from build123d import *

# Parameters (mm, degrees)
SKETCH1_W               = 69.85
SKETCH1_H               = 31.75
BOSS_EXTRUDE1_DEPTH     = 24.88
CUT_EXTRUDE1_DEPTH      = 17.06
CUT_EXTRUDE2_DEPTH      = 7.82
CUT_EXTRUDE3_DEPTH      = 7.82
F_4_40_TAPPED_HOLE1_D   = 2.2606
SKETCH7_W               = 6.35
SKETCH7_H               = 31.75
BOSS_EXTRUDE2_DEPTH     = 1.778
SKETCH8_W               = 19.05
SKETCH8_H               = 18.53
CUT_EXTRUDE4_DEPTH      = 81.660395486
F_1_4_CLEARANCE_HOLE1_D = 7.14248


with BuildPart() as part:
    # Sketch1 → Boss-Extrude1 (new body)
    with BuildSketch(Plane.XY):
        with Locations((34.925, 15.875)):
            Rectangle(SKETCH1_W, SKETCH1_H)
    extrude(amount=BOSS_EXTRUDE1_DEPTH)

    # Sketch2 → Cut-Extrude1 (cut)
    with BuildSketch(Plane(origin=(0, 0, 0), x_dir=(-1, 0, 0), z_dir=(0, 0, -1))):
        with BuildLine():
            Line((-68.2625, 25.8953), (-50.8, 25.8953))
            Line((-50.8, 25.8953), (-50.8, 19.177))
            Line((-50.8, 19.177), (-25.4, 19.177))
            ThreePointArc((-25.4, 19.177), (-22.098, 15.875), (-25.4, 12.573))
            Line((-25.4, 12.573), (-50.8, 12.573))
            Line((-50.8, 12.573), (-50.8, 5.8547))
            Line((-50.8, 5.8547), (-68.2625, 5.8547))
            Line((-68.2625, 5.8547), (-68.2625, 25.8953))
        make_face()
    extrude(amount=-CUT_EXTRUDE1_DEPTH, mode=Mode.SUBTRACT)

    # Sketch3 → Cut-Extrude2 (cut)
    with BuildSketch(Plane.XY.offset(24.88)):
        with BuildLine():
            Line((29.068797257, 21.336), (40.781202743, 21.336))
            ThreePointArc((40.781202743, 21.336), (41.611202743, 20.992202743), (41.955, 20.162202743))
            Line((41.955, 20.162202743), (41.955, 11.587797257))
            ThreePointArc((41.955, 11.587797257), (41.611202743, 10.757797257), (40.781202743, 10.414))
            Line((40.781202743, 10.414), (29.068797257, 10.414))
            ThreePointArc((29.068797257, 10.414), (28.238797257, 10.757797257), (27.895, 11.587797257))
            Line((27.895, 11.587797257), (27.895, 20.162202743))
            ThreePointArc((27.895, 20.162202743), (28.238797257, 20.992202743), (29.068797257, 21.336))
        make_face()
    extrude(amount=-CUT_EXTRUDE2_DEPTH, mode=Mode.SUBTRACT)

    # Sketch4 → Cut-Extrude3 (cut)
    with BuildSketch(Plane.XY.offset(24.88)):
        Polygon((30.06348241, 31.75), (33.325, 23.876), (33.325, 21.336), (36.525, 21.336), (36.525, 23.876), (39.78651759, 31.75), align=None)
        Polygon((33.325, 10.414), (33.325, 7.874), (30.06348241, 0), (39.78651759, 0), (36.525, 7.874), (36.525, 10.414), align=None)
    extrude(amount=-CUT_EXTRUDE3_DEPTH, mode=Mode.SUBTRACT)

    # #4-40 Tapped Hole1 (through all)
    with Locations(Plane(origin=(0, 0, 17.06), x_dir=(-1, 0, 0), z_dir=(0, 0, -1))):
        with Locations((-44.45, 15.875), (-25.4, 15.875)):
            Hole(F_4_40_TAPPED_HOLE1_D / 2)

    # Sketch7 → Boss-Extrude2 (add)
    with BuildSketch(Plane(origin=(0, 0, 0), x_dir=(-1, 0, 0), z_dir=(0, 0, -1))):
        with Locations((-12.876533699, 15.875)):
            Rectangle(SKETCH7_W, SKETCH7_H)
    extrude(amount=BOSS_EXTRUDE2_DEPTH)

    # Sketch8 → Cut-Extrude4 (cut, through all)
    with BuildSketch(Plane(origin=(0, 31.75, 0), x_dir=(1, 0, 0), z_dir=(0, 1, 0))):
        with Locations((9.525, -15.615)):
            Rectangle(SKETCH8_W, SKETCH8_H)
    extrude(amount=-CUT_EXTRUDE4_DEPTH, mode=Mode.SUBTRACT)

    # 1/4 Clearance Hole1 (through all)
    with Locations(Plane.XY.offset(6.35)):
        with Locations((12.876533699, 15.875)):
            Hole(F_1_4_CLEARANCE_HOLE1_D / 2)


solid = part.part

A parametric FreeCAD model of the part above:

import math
import FreeCAD as App
import Part
import Sketcher
Q = App.Units.Quantity

doc = App.newDocument("Part")
params = doc.addObject("Spreadsheet::Sheet", "Params")
for row, (alias, value) in enumerate([
    ("sketch1_width", "2.75 in"),
    ("sketch1_height", "1.25 in"),
    ("pad1_length", "24.88 mm"),
    ("sketch2_width", "1 in"),
    ("sketch2_radius", "0.13 in"),
    ("sketch2_width2", "0.6875 in"),
    ("sketch2_height", "0.789 in"),
    ("pocket1_length", "17.06 mm"),
    ("pocket2_length", "7.82 mm"),
    ("sketch4_height", "0.1 in"),
    ("pocket3_length", "7.82 mm"),
    ("sketch5_diameter", "0.089 in"),
    ("hole_diameter", "0.089 in"),
    ("sketch6_width", "0.25 in"),
    ("sketch6_height", "1.25 in"),
    ("pad2_length", "0.07 in"),
    ("sketch7_width", "0.75 in"),
    ("hole2_diameter", "0.2812 in"),
], start=1):
    params.set(f"A{row}", alias)
    params.set(f"B{row}", "=" + value)
    params.setAlias(f"B{row}", alias)

body = doc.addObject("PartDesign::Body", "Body")

# Sketch on XY plane
sketch1 = body.newObject("Sketcher::SketchObject", "Sketch")
sketch1.AttachmentSupport = (doc.getObject("XY_Plane"), [""])
sketch1.MapMode = "FlatFace"
sketch1.addGeometry(Part.LineSegment(App.Vector(0, 31.75, 0), App.Vector(0, 0, 0)), False)
sketch1.addGeometry(Part.LineSegment(App.Vector(0, 0, 0), App.Vector(69.85, 0, 0)), False)
sketch1.addGeometry(Part.LineSegment(App.Vector(69.85, 0, 0), App.Vector(69.85, 31.75, 0)), False)
sketch1.addGeometry(Part.LineSegment(App.Vector(69.85, 31.75, 0), App.Vector(0, 31.75, 0)), False)
sketch1.addConstraint(Sketcher.Constraint("Coincident", 0, 2, 1, 1))
sketch1.addConstraint(Sketcher.Constraint("Coincident", 1, 2, 2, 1))
sketch1.addConstraint(Sketcher.Constraint("Coincident", 2, 2, 3, 1))
sketch1.addConstraint(Sketcher.Constraint("Coincident", 3, 2, 0, 1))
sketch1.addConstraint(Sketcher.Constraint("Vertical", 0))
sketch1.addConstraint(Sketcher.Constraint("Horizontal", 1))
sketch1.addConstraint(Sketcher.Constraint("Vertical", 2))
sketch1.addConstraint(Sketcher.Constraint("Horizontal", 3))
sketch1.addConstraint(Sketcher.Constraint("Coincident", 0, 2, -1, 1))
sketch1.addConstraint(Sketcher.Constraint("DistanceX", 1, 1, 1, 2, Q("2.75 in")))
sketch1.addConstraint(Sketcher.Constraint("DistanceY", 0, 2, 0, 1, Q("1.25 in")))
sketch1.setExpression("Constraints[9]", "Params.sketch1_width")
sketch1.setExpression("Constraints[10]", "Params.sketch1_height")
pad1 = body.newObject("PartDesign::Pad", "Pad")
pad1.Profile = sketch1
pad1.setExpression("Length", "Params.pad1_length")

# Sketch on XY plane
sketch2 = body.newObject("Sketcher::SketchObject", "Sketch001")
sketch2.AttachmentSupport = (doc.getObject("XY_Plane"), [""])
sketch2.MapMode = "FlatFace"
sketch2.addGeometry(Part.LineSegment(App.Vector(50.8, 25.8953, 0), App.Vector(68.2625, 25.8953, 0)), False)
sketch2.addGeometry(Part.LineSegment(App.Vector(68.2625, 25.8953, 0), App.Vector(68.2625, 5.8547, 0)), False)
sketch2.addGeometry(Part.LineSegment(App.Vector(68.2625, 5.8547, 0), App.Vector(50.8, 5.8547, 0)), False)
sketch2.addGeometry(Part.LineSegment(App.Vector(50.8, 5.8547, 0), App.Vector(50.8, 12.573, 0)), False)
sketch2.addGeometry(Part.LineSegment(App.Vector(50.8, 12.573, 0), App.Vector(25.4, 12.573, 0)), False)
sketch2.addGeometry(Part.ArcOfCircle(Part.Circle(App.Vector(25.4, 15.875, 0), App.Vector(0, 0, 1), 3.302), math.radians(90), math.radians(270)), False)
sketch2.addGeometry(Part.LineSegment(App.Vector(25.4, 19.177, 0), App.Vector(50.8, 19.177, 0)), False)
sketch2.addGeometry(Part.LineSegment(App.Vector(50.8, 19.177, 0), App.Vector(50.8, 25.8953, 0)), False)
sketch2.addConstraint(Sketcher.Constraint("Coincident", 0, 2, 1, 1))
sketch2.addConstraint(Sketcher.Constraint("Coincident", 1, 2, 2, 1))
sketch2.addConstraint(Sketcher.Constraint("Coincident", 2, 2, 3, 1))
sketch2.addConstraint(Sketcher.Constraint("Coincident", 3, 2, 4, 1))
sketch2.addConstraint(Sketcher.Constraint("Tangent", 4, 2, 5, 2))
sketch2.addConstraint(Sketcher.Constraint("Tangent", 5, 1, 6, 1))
sketch2.addConstraint(Sketcher.Constraint("Coincident", 6, 2, 7, 1))
sketch2.addConstraint(Sketcher.Constraint("Coincident", 7, 2, 0, 1))
sketch2.addConstraint(Sketcher.Constraint("Horizontal", 0))
sketch2.addConstraint(Sketcher.Constraint("Vertical", 1))
sketch2.addConstraint(Sketcher.Constraint("Horizontal", 2))
sketch2.addConstraint(Sketcher.Constraint("Vertical", 3))
sketch2.addConstraint(Sketcher.Constraint("Horizontal", 4))
sketch2.addConstraint(Sketcher.Constraint("Horizontal", 6))
sketch2.addConstraint(Sketcher.Constraint("Vertical", 7))
sketch2.addConstraint(Sketcher.Constraint("Vertical", 3, 2, 6, 2))
sketch2.addConstraint(Sketcher.Constraint("Equal", 3, 7))
sketch2.addConstraint(Sketcher.Constraint("DistanceX", 4, 2, 4, 1, Q("1 in")))
sketch2.addConstraint(Sketcher.Constraint("Radius", 5, Q("0.13 in")))
sketch2.addConstraint(Sketcher.Constraint("DistanceX", -1, 1, 5, 3, Q("1 in")))
sketch2.addConstraint(Sketcher.Constraint("DistanceX", 0, 1, 0, 2, Q("0.6875 in")))
sketch2.addConstraint(Sketcher.Constraint("DistanceY", 1, 2, 1, 1, Q("0.789 in")))
sketch2.addConstraint(Sketcher.Constraint("DistanceY", -1, 1, 5, 3, Q("0.625 in")))
sketch2.setExpression("Constraints[17]", "Params.sketch2_width")
sketch2.setExpression("Constraints[18]", "Params.sketch2_radius")
sketch2.setExpression("Constraints[20]", "Params.sketch2_width2")
sketch2.setExpression("Constraints[21]", "Params.sketch2_height")
pocket1 = body.newObject("PartDesign::Pocket", "Pocket")
pocket1.Profile = sketch2
pocket1.setExpression("Length", "Params.pocket1_length")
pocket1.Reversed = True

# Sketch on XY plane
sketch3 = body.newObject("Sketcher::SketchObject", "Sketch002")
sketch3.AttachmentSupport = (doc.getObject("XY_Plane"), [""])
sketch3.MapMode = "FlatFace"
sketch3.AttachmentOffset = App.Placement(App.Vector(0, 0, 24.88), App.Rotation())
sketch3.addGeometry(Part.LineSegment(App.Vector(40.781203, 21.336, 0), App.Vector(29.068797, 21.336, 0)), False)
sketch3.addGeometry(Part.ArcOfCircle(Part.Circle(App.Vector(29.068797, 20.162203, 0), App.Vector(0, 0, 1), 1.173797), math.radians(90), math.radians(180)), False)
sketch3.addGeometry(Part.LineSegment(App.Vector(27.895, 20.162203, 0), App.Vector(27.895, 11.587797, 0)), False)
sketch3.addGeometry(Part.ArcOfCircle(Part.Circle(App.Vector(29.068797, 11.587797, 0), App.Vector(0, 0, 1), 1.173797), math.radians(-180), math.radians(-90)), False)
sketch3.addGeometry(Part.LineSegment(App.Vector(29.068797, 10.414, 0), App.Vector(40.781203, 10.414, 0)), False)
sketch3.addGeometry(Part.ArcOfCircle(Part.Circle(App.Vector(40.781203, 11.587797, 0), App.Vector(0, 0, 1), 1.173797), math.radians(-90), math.radians(0)), False)
sketch3.addGeometry(Part.LineSegment(App.Vector(41.955, 11.587797, 0), App.Vector(41.955, 20.162203, 0)), False)
sketch3.addGeometry(Part.ArcOfCircle(Part.Circle(App.Vector(40.781203, 20.162203, 0), App.Vector(0, 0, 1), 1.173797), math.radians(0), math.radians(90)), False)
sketch3.addConstraint(Sketcher.Constraint("Tangent", 0, 2, 1, 1))
sketch3.addConstraint(Sketcher.Constraint("Tangent", 1, 2, 2, 1))
sketch3.addConstraint(Sketcher.Constraint("Tangent", 2, 2, 3, 1))
sketch3.addConstraint(Sketcher.Constraint("Tangent", 3, 2, 4, 1))
sketch3.addConstraint(Sketcher.Constraint("Tangent", 4, 2, 5, 1))
sketch3.addConstraint(Sketcher.Constraint("Tangent", 5, 2, 6, 1))
sketch3.addConstraint(Sketcher.Constraint("Tangent", 6, 2, 7, 1))
sketch3.addConstraint(Sketcher.Constraint("Tangent", 7, 2, 0, 1))
sketch3.addConstraint(Sketcher.Constraint("Horizontal", 0))
sketch3.addConstraint(Sketcher.Constraint("Vertical", 2))
sketch3.addConstraint(Sketcher.Constraint("Horizontal", 4))
sketch3.addConstraint(Sketcher.Constraint("Vertical", 6))
sketch3.addConstraint(Sketcher.Constraint("Equal", 1, 3))
sketch3.addConstraint(Sketcher.Constraint("Equal", 3, 5))
sketch3.addConstraint(Sketcher.Constraint("Equal", 5, 7))
sketch3.addConstraint(Sketcher.Constraint("DistanceY", -1, 1, 0, 2, Q("0.84 in")))
sketch3.addConstraint(Sketcher.Constraint("DistanceY", -1, 1, 3, 2, Q("0.41 in")))
sketch3.addConstraint(Sketcher.Constraint("Radius", 1, Q("1.173797 mm")))
sketch3.addConstraint(Sketcher.Constraint("DistanceX", -1, 1, 1, 2, Q("27.895 mm")))
sketch3.addConstraint(Sketcher.Constraint("DistanceX", -1, 1, 5, 2, Q("41.955 mm")))
pocket2 = body.newObject("PartDesign::Pocket", "Pocket001")
pocket2.Profile = sketch3
pocket2.setExpression("Length", "Params.pocket2_length")

# Sketch on XY plane
sketch4 = body.newObject("Sketcher::SketchObject", "Sketch003")
sketch4.AttachmentSupport = (doc.getObject("XY_Plane"), [""])
sketch4.MapMode = "FlatFace"
sketch4.AttachmentOffset = App.Placement(App.Vector(0, 0, 24.88), App.Rotation())
sketch4.addGeometry(Part.LineSegment(App.Vector(30.063482, 31.75, 0), App.Vector(33.325, 23.876, 0)), False)
sketch4.addGeometry(Part.LineSegment(App.Vector(33.325, 23.876, 0), App.Vector(33.325, 21.336, 0)), False)
sketch4.addGeometry(Part.LineSegment(App.Vector(33.325, 21.336, 0), App.Vector(36.525, 21.336, 0)), False)
sketch4.addGeometry(Part.LineSegment(App.Vector(36.525, 21.336, 0), App.Vector(36.525, 23.876, 0)), False)
sketch4.addGeometry(Part.LineSegment(App.Vector(36.525, 23.876, 0), App.Vector(39.786518, 31.75, 0)), False)
sketch4.addGeometry(Part.LineSegment(App.Vector(39.786518, 31.75, 0), App.Vector(30.063482, 31.75, 0)), False)
sketch4.addGeometry(Part.LineSegment(App.Vector(33.325, 10.414, 0), App.Vector(33.325, 7.874, 0)), False)
sketch4.addGeometry(Part.LineSegment(App.Vector(33.325, 7.874, 0), App.Vector(30.063482, 0, 0)), False)
sketch4.addGeometry(Part.LineSegment(App.Vector(30.063482, 0, 0), App.Vector(39.786518, 0, 0)), False)
sketch4.addGeometry(Part.LineSegment(App.Vector(39.786518, 0, 0), App.Vector(36.525, 7.874, 0)), False)
sketch4.addGeometry(Part.LineSegment(App.Vector(36.525, 7.874, 0), App.Vector(36.525, 10.414, 0)), False)
sketch4.addGeometry(Part.LineSegment(App.Vector(36.525, 10.414, 0), App.Vector(33.325, 10.414, 0)), False)
sketch4.addConstraint(Sketcher.Constraint("Coincident", 0, 2, 1, 1))
sketch4.addConstraint(Sketcher.Constraint("Coincident", 1, 2, 2, 1))
sketch4.addConstraint(Sketcher.Constraint("Coincident", 2, 2, 3, 1))
sketch4.addConstraint(Sketcher.Constraint("Coincident", 3, 2, 4, 1))
sketch4.addConstraint(Sketcher.Constraint("Coincident", 4, 2, 5, 1))
sketch4.addConstraint(Sketcher.Constraint("Coincident", 5, 2, 0, 1))
sketch4.addConstraint(Sketcher.Constraint("Coincident", 6, 2, 7, 1))
sketch4.addConstraint(Sketcher.Constraint("Coincident", 7, 2, 8, 1))
sketch4.addConstraint(Sketcher.Constraint("Coincident", 8, 2, 9, 1))
sketch4.addConstraint(Sketcher.Constraint("Coincident", 9, 2, 10, 1))
sketch4.addConstraint(Sketcher.Constraint("Coincident", 10, 2, 11, 1))
sketch4.addConstraint(Sketcher.Constraint("Coincident", 11, 2, 6, 1))
sketch4.addConstraint(Sketcher.Constraint("Vertical", 1))
sketch4.addConstraint(Sketcher.Constraint("Horizontal", 2))
sketch4.addConstraint(Sketcher.Constraint("Vertical", 3))
sketch4.addConstraint(Sketcher.Constraint("Horizontal", 5))
sketch4.addConstraint(Sketcher.Constraint("Vertical", 6))
sketch4.addConstraint(Sketcher.Constraint("Horizontal", 8))
sketch4.addConstraint(Sketcher.Constraint("Vertical", 10))
sketch4.addConstraint(Sketcher.Constraint("Horizontal", 11))
sketch4.addConstraint(Sketcher.Constraint("PointOnObject", 7, 2, -1))
sketch4.addConstraint(Sketcher.Constraint("Parallel", 4, 7))
sketch4.addConstraint(Sketcher.Constraint("Parallel", 0, 9))
sketch4.addConstraint(Sketcher.Constraint("Horizontal", 0, 2, 3, 2))
sketch4.addConstraint(Sketcher.Constraint("Horizontal", 6, 2, 9, 2))
sketch4.addConstraint(Sketcher.Constraint("Vertical", 1, 2, 6, 2))
sketch4.addConstraint(Sketcher.Constraint("Vertical", 5, 2, 7, 2))
sketch4.addConstraint(Sketcher.Constraint("Vertical", 4, 2, 8, 2))
sketch4.addConstraint(Sketcher.Constraint("Vertical", 3, 2, 9, 2))
sketch4.addConstraint(Sketcher.Constraint("Equal", 3, 6))
sketch4.addConstraint(Sketcher.Constraint("DistanceY", 1, 2, 1, 1, Q("0.1 in")))
sketch4.addConstraint(Sketcher.Constraint("Angle", 0, Q("-67.5 deg")))
sketch4.addConstraint(Sketcher.Constraint("DistanceY", -1, 1, 0, 2, Q("0.94 in")))
sketch4.addConstraint(Sketcher.Constraint("DistanceY", -1, 1, 4, 2, Q("1.25 in")))
sketch4.addConstraint(Sketcher.Constraint("DistanceX", 2, 1, 2, 2, Q("3.2 mm")))
sketch4.addConstraint(Sketcher.Constraint("DistanceX", -1, 1, 0, 2, Q("33.325 mm")))
sketch4.setExpression("Constraints[30]", "Params.sketch4_height")
pocket3 = body.newObject("PartDesign::Pocket", "Pocket002")
pocket3.Profile = sketch4
pocket3.setExpression("Length", "Params.pocket3_length")

# Sketch on XY plane
sketch5 = body.newObject("Sketcher::SketchObject", "Sketch004")
sketch5.AttachmentSupport = (doc.getObject("XY_Plane"), [""])
sketch5.MapMode = "FlatFace"
sketch5.AttachmentOffset = App.Placement(App.Vector(0, 0, 17.06), App.Rotation())
sketch5.addGeometry(Part.Circle(App.Vector(44.45, 15.875, 0), App.Vector(0, 0, 1), 1.1303), False)
sketch5.addGeometry(Part.Circle(App.Vector(25.4, 15.875, 0), App.Vector(0, 0, 1), 1.1303), False)
sketch5.addConstraint(Sketcher.Constraint("Equal", 0, 1))
sketch5.addConstraint(Sketcher.Constraint("Horizontal", 0, 3, 1, 3))
sketch5.addConstraint(Sketcher.Constraint("Diameter", 0, Q("0.089 in")))
sketch5.addConstraint(Sketcher.Constraint("DistanceX", -1, 1, 1, 3, Q("1 in")))
sketch5.addConstraint(Sketcher.Constraint("DistanceX", -1, 1, 0, 3, Q("1.75 in")))
sketch5.addConstraint(Sketcher.Constraint("DistanceY", -1, 1, 0, 3, Q("0.625 in")))
sketch5.setExpression("Constraints[2]", "Params.sketch5_diameter")
doc.recompute()
hole = body.newObject("PartDesign::Hole", "Hole")
hole.Profile = sketch5
hole.ThreadType = "None"
hole.setExpression("Diameter", "Params.hole_diameter")
hole.DepthType = "ThroughAll"
hole.Reversed = True

# Sketch on XY plane
sketch6 = body.newObject("Sketcher::SketchObject", "Sketch005")
sketch6.AttachmentSupport = (doc.getObject("XY_Plane"), [""])
sketch6.MapMode = "FlatFace"
sketch6.addGeometry(Part.LineSegment(App.Vector(16.051534, 31.75, 0), App.Vector(16.051534, 0, 0)), False)
sketch6.addGeometry(Part.LineSegment(App.Vector(16.051534, 0, 0), App.Vector(9.701534, 0, 0)), False)
sketch6.addGeometry(Part.LineSegment(App.Vector(9.701534, 0, 0), App.Vector(9.701534, 31.75, 0)), False)
sketch6.addGeometry(Part.LineSegment(App.Vector(9.701534, 31.75, 0), App.Vector(16.051534, 31.75, 0)), False)
sketch6.addConstraint(Sketcher.Constraint("Coincident", 0, 2, 1, 1))
sketch6.addConstraint(Sketcher.Constraint("Coincident", 1, 2, 2, 1))
sketch6.addConstraint(Sketcher.Constraint("Coincident", 2, 2, 3, 1))
sketch6.addConstraint(Sketcher.Constraint("Coincident", 3, 2, 0, 1))
sketch6.addConstraint(Sketcher.Constraint("Vertical", 0))
sketch6.addConstraint(Sketcher.Constraint("Horizontal", 1))
sketch6.addConstraint(Sketcher.Constraint("Vertical", 2))
sketch6.addConstraint(Sketcher.Constraint("Horizontal", 3))
sketch6.addConstraint(Sketcher.Constraint("PointOnObject", 0, 2, -1))
sketch6.addConstraint(Sketcher.Constraint("DistanceX", 1, 2, 1, 1, Q("0.25 in")))
sketch6.addConstraint(Sketcher.Constraint("DistanceY", 0, 2, 0, 1, Q("1.25 in")))
sketch6.addConstraint(Sketcher.Constraint("DistanceX", -1, 1, 0, 2, Q("16.051534 mm")))
sketch6.setExpression("Constraints[9]", "Params.sketch6_width")
sketch6.setExpression("Constraints[10]", "Params.sketch6_height")
pad2 = body.newObject("PartDesign::Pad", "Pad001")
pad2.Profile = sketch6
pad2.setExpression("Length", "Params.pad2_length")
pad2.Reversed = True

# Sketch on XZ plane
sketch7 = body.newObject("Sketcher::SketchObject", "Sketch006")
sketch7.AttachmentSupport = (doc.getObject("XZ_Plane"), [""])
sketch7.MapMode = "FlatFace"
sketch7.AttachmentOffset = App.Placement(App.Vector(0, 0, -1.25 * 25.4), App.Rotation())
sketch7.addGeometry(Part.LineSegment(App.Vector(0, 6.35, 0), App.Vector(0, 24.88, 0)), False)
sketch7.addGeometry(Part.LineSegment(App.Vector(0, 24.88, 0), App.Vector(19.05, 24.88, 0)), False)
sketch7.addGeometry(Part.LineSegment(App.Vector(19.05, 24.88, 0), App.Vector(19.05, 6.35, 0)), False)
sketch7.addGeometry(Part.LineSegment(App.Vector(19.05, 6.35, 0), App.Vector(0, 6.35, 0)), False)
sketch7.addConstraint(Sketcher.Constraint("Coincident", 0, 2, 1, 1))
sketch7.addConstraint(Sketcher.Constraint("Coincident", 1, 2, 2, 1))
sketch7.addConstraint(Sketcher.Constraint("Coincident", 2, 2, 3, 1))
sketch7.addConstraint(Sketcher.Constraint("Coincident", 3, 2, 0, 1))
sketch7.addConstraint(Sketcher.Constraint("Vertical", 0))
sketch7.addConstraint(Sketcher.Constraint("Horizontal", 1))
sketch7.addConstraint(Sketcher.Constraint("Vertical", 2))
sketch7.addConstraint(Sketcher.Constraint("Horizontal", 3))
sketch7.addConstraint(Sketcher.Constraint("PointOnObject", 0, 2, -2))
sketch7.addConstraint(Sketcher.Constraint("DistanceX", 1, 1, 1, 2, Q("0.75 in")))
sketch7.addConstraint(Sketcher.Constraint("DistanceY", -1, 1, 2, 2, Q("0.25 in")))
sketch7.addConstraint(Sketcher.Constraint("DistanceY", 0, 1, 0, 2, Q("18.53 mm")))
sketch7.setExpression("Constraints[9]", "Params.sketch7_width")
pocket4 = body.newObject("PartDesign::Pocket", "Pocket003")
pocket4.Profile = sketch7
pocket4.Type = "ThroughAll"
pocket4.Reversed = True

# Sketch on XY plane
sketch8 = body.newObject("Sketcher::SketchObject", "Sketch007")
sketch8.AttachmentSupport = (doc.getObject("XY_Plane"), [""])
sketch8.MapMode = "FlatFace"
sketch8.AttachmentOffset = App.Placement(App.Vector(0, 0, 0.25 * 25.4), App.Rotation())
sketch8.addGeometry(Part.Circle(App.Vector(12.876534, 15.875, 0), App.Vector(0, 0, 1), 3.57124), False)
sketch8.addConstraint(Sketcher.Constraint("Diameter", 0, Q("0.2812 in")))
sketch8.addConstraint(Sketcher.Constraint("DistanceY", -1, 1, 0, 3, Q("0.625 in")))
sketch8.addConstraint(Sketcher.Constraint("DistanceX", -1, 1, 0, 3, Q("12.876534 mm")))
doc.recompute()
hole2 = body.newObject("PartDesign::Hole", "Hole001")
hole2.Profile = sketch8
hole2.ThreadType = "None"
hole2.setExpression("Diameter", "Params.hole2_diameter")
hole2.DepthType = "ThroughAll"

doc.recompute()
